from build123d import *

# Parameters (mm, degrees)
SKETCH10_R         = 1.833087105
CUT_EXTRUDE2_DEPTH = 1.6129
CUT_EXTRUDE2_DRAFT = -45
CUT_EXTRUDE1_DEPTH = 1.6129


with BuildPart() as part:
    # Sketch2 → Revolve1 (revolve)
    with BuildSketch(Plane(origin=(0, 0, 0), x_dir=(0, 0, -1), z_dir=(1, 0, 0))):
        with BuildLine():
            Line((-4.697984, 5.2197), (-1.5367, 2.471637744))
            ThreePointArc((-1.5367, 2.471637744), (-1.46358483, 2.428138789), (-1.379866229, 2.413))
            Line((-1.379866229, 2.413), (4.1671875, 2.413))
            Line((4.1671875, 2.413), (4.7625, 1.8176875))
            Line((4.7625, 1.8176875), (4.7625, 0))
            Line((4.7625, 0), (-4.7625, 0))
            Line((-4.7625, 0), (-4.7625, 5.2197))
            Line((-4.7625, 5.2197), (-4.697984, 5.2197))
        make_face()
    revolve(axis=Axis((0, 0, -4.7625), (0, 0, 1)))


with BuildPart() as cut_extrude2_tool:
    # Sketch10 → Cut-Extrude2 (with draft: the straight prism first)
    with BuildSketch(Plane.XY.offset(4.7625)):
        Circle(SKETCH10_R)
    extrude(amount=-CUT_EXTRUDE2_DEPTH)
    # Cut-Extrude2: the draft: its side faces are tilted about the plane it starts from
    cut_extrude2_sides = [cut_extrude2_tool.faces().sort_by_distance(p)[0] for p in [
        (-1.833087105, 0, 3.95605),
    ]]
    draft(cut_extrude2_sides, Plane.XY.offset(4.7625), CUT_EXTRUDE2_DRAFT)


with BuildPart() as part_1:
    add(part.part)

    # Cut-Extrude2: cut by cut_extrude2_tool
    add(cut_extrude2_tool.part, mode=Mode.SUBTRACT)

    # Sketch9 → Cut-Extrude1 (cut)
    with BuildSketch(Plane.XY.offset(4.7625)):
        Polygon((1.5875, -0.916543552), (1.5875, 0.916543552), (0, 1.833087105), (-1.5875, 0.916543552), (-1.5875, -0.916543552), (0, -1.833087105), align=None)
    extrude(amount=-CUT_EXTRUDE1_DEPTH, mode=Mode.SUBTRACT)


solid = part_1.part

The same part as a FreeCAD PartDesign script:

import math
import FreeCAD as App
import Part
import Sketcher
from FreeCAD import Vector
Q = App.Units.Quantity


def faces_at(feature, points):
    """Names of the faces that lie closest to the given points."""
    faces = feature.Shape.Faces
    near = lambda p: min(range(len(faces)), key=lambda i: faces[i].distToShape(Part.Vertex(*p))[0])
    return sorted({f"Face{near(p) + 1}" for p in points})

doc = App.newDocument("Part")
body = doc.addObject("PartDesign::Body", "Body")

sketch1 = doc.addObject("Sketcher::SketchObject", "Sketch")
body.addObject(sketch1)
sketch1.AttachmentSupport = (doc.YZ_Plane, [""])
sketch1.MapMode = "FlatFace"
sketch1.addGeometry(Part.LineSegment(Vector(2.471638, 1.5367, 0), Vector(5.2197, 4.697984, 0)), False)
sketch1.addGeometry(Part.LineSegment(Vector(5.2197, 4.697984, 0), Vector(5.2197, 4.7625, 0)), False)
sketch1.addGeometry(Part.LineSegment(Vector(5.2197, 4.7625, 0), Vector(0, 4.7625, 0)), False)
sketch1.addGeometry(Part.LineSegment(Vector(0, 4.7625, 0), Vector(0, -4.7625, 0)), False)
sketch1.addGeometry(Part.LineSegment(Vector(0, -4.7625, 0), Vector(1.817687, -4.7625, 0)), False)
sketch1.addGeometry(Part.LineSegment(Vector(1.817687, -4.7625, 0), Vector(2.413, -4.167187, 0)), False)
sketch1.addGeometry(Part.LineSegment(Vector(2.413, -4.167187, 0), Vector(2.413, 1.379866, 0)), False)
sketch1.addGeometry(Part.ArcOfCircle(Part.Circle(Vector(2.652054, 1.379866, 0), Vector(0, 0, 1), 0.239054), math.radians(139), math.radians(180)), False)
sketch1.addConstraint(Sketcher.Constraint("Coincident", 0, 2, 1, 1))
sketch1.addConstraint(Sketcher.Constraint("Coincident", 1, 2, 2, 1))
sketch1.addConstraint(Sketcher.Constraint("Coincident", 2, 2, 3, 1))
sketch1.addConstraint(Sketcher.Constraint("Coincident", 3, 2, 4, 1))
sketch1.addConstraint(Sketcher.Constraint("Coincident", 4, 2, 5, 1))
sketch1.addConstraint(Sketcher.Constraint("Coincident", 5, 2, 6, 1))
sketch1.addConstraint(Sketcher.Constraint("Tangent", 6, 2, 7, 2))
sketch1.addConstraint(Sketcher.Constraint("Tangent", 7, 1, 0, 1))
sketch1.addConstraint(Sketcher.Constraint("Vertical", 1))
sketch1.addConstraint(Sketcher.Constraint("Horizontal", 2))
sketch1.addConstraint(Sketcher.Constraint("Vertical", 3))
sketch1.addConstraint(Sketcher.Constraint("Horizontal", 4))
sketch1.addConstraint(Sketcher.Constraint("Vertical", 6))
sketch1.addConstraint(Sketcher.Constraint("Symmetric", 2, 2, 3, 2, -1, 1))
sketch1.addConstraint(Sketcher.Constraint("Angle", 0, Q("49 deg")))
sketch1.addConstraint(Sketcher.Constraint("Angle", 5, Q("45 deg")))
sketch1.addConstraint(Sketcher.Constraint("DistanceY", 3, 2, 3, 1, Q("0.375 in")))
sketch1.addConstraint(Sketcher.Constraint("DistanceX", 2, 2, 2, 1, Q("0.2055 in")))
sketch1.addConstraint(Sketcher.Constraint("DistanceX", -1, 1, 5, 2, Q("0.095 in")))
sketch1.addConstraint(Sketcher.Constraint("DistanceY", 7, 1, 2, 2, Q("0.127 in")))
sketch1.addConstraint(Sketcher.Constraint("Radius", 7, Q("0.239054 mm")))
sketch1.addConstraint(Sketcher.Constraint("Distance", 5, Q("0.841899 mm")))
revolution = doc.addObject("PartDesign::Revolution", "Revolution")
body.addObject(revolution)
revolution.Profile = sketch1
revolution.ReferenceAxis = (sketch1, ["V_Axis"])
revolution.Angle = 360
body2 = doc.addObject("PartDesign::Body", "Body001")

sketch2 = doc.addObject("Sketcher::SketchObject", "Sketch001")
body2.addObject(sketch2)
sketch2.AttachmentSupport = (doc.getObject("XY_Plane001"), [""])
sketch2.MapMode = "FlatFace"
sketch2.AttachmentOffset = App.Placement(Vector(0, 0, 0.1875 * 25.4), App.Rotation())
sketch2.addGeometry(Part.Circle(Vector(0, 0, 0), Vector(0, 0, 1), 1.833087), False)
sketch2.addConstraint(Sketcher.Constraint("Coincident", 0, 3, -1, 1))
sketch2.addConstraint(Sketcher.Constraint("Diameter", 0, Q("3.666174 mm")))
pad1 = doc.addObject("PartDesign::Pad", "Pad")
body2.addObject(pad1)
pad1.Profile = sketch2
pad1.Length = Q("0.0635 in")
pad1.Reversed = True
doc.recompute()

datumplane = doc.addObject("PartDesign::Plane", "DatumPlane")
body2.addObject(datumplane)
datumplane.AttachmentSupport = (doc.getObject("XY_Plane001"), [""])
datumplane.MapMode = "FlatFace"
datumplane.AttachmentOffset = App.Placement(Vector(0, 0, 0.1875 * 25.4), App.Rotation())
draft = doc.addObject("PartDesign::Draft", "Draft")
body2.addObject(draft)
draft.Base = (pad1, faces_at(pad1, [(-1.833, 0, 3.956)]))
draft.NeutralPlane = (datumplane, [""])
draft.Angle = 45
draft.Reversed = True
doc.recompute()

boolean = doc.addObject("PartDesign::Boolean", "Boolean")
body.addObject(boolean)
boolean.Type = "Cut"
boolean.addObjects([body2])

sketch3 = doc.addObject("Sketcher::SketchObject", "Sketch002")
body.addObject(sketch3)
sketch3.AttachmentSupport = (doc.XY_Plane, [""])
sketch3.MapMode = "FlatFace"
sketch3.AttachmentOffset = App.Placement(Vector(0, 0, 0.1875 * 25.4), App.Rotation())
sketch3.addGeometry(Part.LineSegment(Vector(1.5875, -0.916544, 0), Vector(1.5875, 0.916544, 0)), False)
sketch3.addGeometry(Part.LineSegment(Vector(1.5875, 0.916544, 0), Vector(0, 1.833087, 0)), False)
sketch3.addGeometry(Part.LineSegment(Vector(0, 1.833087, 0), Vector(-1.5875, 0.916544, 0)), False)
sketch3.addGeometry(Part.LineSegment(Vector(-1.5875, 0.916544, 0), Vector(-1.5875, -0.916544, 0)), False)
sketch3.addGeometry(Part.LineSegment(Vector(-1.5875, -0.916544, 0), Vector(0, -1.833087, 0)), False)
sketch3.addGeometry(Part.LineSegment(Vector(0, -1.833087, 0), Vector(1.5875, -0.916544, 0)), False)
sketch3.addConstraint(Sketcher.Constraint("Coincident", 0, 2, 1, 1))
sketch3.addConstraint(Sketcher.Constraint("Coincident", 1, 2, 2, 1))
sketch3.addConstraint(Sketcher.Constraint("Coincident", 2, 2, 3, 1))
sketch3.addConstraint(Sketcher.Constraint("Coincident", 3, 2, 4, 1))
sketch3.addConstraint(Sketcher.Constraint("Coincident", 4, 2, 5, 1))
sketch3.addConstraint(Sketcher.Constraint("Coincident", 5, 2, 0, 1))
sketch3.addConstraint(Sketcher.Constraint("Vertical", 0))
sketch3.addConstraint(Sketcher.Constraint("Vertical", 3))
sketch3.addConstraint(Sketcher.Constraint("Symmetric", 0, 2, 3, 2, -1, 1))
sketch3.addConstraint(Sketcher.Constraint("Symmetric", 1, 2, 4, 2, -1, 1))
sketch3.addConstraint(Sketcher.Constraint("PointOnObject", 1, 2, -2))
sketch3.addConstraint(Sketcher.Constraint("Parallel", 2, 5))
sketch3.addConstraint(Sketcher.Constraint("Horizontal", 0, 2, 2, 2))
sketch3.addConstraint(Sketcher.Constraint("Angle", 1, Q("150 deg")))
sketch3.addConstraint(Sketcher.Constraint("DistanceX", -1, 1, 0, 2, Q("0.0625 in")))
sketch3.addConstraint(Sketcher.Constraint("DistanceY", 0, 1, 0, 2, Q("1.833087 mm")))
pocket1 = doc.addObject("PartDesign::Pocket", "Pocket")
body.addObject(pocket1)
pocket1.Profile = sketch3
pocket1.Length = Q("0.0635 in")

doc.recompute()
